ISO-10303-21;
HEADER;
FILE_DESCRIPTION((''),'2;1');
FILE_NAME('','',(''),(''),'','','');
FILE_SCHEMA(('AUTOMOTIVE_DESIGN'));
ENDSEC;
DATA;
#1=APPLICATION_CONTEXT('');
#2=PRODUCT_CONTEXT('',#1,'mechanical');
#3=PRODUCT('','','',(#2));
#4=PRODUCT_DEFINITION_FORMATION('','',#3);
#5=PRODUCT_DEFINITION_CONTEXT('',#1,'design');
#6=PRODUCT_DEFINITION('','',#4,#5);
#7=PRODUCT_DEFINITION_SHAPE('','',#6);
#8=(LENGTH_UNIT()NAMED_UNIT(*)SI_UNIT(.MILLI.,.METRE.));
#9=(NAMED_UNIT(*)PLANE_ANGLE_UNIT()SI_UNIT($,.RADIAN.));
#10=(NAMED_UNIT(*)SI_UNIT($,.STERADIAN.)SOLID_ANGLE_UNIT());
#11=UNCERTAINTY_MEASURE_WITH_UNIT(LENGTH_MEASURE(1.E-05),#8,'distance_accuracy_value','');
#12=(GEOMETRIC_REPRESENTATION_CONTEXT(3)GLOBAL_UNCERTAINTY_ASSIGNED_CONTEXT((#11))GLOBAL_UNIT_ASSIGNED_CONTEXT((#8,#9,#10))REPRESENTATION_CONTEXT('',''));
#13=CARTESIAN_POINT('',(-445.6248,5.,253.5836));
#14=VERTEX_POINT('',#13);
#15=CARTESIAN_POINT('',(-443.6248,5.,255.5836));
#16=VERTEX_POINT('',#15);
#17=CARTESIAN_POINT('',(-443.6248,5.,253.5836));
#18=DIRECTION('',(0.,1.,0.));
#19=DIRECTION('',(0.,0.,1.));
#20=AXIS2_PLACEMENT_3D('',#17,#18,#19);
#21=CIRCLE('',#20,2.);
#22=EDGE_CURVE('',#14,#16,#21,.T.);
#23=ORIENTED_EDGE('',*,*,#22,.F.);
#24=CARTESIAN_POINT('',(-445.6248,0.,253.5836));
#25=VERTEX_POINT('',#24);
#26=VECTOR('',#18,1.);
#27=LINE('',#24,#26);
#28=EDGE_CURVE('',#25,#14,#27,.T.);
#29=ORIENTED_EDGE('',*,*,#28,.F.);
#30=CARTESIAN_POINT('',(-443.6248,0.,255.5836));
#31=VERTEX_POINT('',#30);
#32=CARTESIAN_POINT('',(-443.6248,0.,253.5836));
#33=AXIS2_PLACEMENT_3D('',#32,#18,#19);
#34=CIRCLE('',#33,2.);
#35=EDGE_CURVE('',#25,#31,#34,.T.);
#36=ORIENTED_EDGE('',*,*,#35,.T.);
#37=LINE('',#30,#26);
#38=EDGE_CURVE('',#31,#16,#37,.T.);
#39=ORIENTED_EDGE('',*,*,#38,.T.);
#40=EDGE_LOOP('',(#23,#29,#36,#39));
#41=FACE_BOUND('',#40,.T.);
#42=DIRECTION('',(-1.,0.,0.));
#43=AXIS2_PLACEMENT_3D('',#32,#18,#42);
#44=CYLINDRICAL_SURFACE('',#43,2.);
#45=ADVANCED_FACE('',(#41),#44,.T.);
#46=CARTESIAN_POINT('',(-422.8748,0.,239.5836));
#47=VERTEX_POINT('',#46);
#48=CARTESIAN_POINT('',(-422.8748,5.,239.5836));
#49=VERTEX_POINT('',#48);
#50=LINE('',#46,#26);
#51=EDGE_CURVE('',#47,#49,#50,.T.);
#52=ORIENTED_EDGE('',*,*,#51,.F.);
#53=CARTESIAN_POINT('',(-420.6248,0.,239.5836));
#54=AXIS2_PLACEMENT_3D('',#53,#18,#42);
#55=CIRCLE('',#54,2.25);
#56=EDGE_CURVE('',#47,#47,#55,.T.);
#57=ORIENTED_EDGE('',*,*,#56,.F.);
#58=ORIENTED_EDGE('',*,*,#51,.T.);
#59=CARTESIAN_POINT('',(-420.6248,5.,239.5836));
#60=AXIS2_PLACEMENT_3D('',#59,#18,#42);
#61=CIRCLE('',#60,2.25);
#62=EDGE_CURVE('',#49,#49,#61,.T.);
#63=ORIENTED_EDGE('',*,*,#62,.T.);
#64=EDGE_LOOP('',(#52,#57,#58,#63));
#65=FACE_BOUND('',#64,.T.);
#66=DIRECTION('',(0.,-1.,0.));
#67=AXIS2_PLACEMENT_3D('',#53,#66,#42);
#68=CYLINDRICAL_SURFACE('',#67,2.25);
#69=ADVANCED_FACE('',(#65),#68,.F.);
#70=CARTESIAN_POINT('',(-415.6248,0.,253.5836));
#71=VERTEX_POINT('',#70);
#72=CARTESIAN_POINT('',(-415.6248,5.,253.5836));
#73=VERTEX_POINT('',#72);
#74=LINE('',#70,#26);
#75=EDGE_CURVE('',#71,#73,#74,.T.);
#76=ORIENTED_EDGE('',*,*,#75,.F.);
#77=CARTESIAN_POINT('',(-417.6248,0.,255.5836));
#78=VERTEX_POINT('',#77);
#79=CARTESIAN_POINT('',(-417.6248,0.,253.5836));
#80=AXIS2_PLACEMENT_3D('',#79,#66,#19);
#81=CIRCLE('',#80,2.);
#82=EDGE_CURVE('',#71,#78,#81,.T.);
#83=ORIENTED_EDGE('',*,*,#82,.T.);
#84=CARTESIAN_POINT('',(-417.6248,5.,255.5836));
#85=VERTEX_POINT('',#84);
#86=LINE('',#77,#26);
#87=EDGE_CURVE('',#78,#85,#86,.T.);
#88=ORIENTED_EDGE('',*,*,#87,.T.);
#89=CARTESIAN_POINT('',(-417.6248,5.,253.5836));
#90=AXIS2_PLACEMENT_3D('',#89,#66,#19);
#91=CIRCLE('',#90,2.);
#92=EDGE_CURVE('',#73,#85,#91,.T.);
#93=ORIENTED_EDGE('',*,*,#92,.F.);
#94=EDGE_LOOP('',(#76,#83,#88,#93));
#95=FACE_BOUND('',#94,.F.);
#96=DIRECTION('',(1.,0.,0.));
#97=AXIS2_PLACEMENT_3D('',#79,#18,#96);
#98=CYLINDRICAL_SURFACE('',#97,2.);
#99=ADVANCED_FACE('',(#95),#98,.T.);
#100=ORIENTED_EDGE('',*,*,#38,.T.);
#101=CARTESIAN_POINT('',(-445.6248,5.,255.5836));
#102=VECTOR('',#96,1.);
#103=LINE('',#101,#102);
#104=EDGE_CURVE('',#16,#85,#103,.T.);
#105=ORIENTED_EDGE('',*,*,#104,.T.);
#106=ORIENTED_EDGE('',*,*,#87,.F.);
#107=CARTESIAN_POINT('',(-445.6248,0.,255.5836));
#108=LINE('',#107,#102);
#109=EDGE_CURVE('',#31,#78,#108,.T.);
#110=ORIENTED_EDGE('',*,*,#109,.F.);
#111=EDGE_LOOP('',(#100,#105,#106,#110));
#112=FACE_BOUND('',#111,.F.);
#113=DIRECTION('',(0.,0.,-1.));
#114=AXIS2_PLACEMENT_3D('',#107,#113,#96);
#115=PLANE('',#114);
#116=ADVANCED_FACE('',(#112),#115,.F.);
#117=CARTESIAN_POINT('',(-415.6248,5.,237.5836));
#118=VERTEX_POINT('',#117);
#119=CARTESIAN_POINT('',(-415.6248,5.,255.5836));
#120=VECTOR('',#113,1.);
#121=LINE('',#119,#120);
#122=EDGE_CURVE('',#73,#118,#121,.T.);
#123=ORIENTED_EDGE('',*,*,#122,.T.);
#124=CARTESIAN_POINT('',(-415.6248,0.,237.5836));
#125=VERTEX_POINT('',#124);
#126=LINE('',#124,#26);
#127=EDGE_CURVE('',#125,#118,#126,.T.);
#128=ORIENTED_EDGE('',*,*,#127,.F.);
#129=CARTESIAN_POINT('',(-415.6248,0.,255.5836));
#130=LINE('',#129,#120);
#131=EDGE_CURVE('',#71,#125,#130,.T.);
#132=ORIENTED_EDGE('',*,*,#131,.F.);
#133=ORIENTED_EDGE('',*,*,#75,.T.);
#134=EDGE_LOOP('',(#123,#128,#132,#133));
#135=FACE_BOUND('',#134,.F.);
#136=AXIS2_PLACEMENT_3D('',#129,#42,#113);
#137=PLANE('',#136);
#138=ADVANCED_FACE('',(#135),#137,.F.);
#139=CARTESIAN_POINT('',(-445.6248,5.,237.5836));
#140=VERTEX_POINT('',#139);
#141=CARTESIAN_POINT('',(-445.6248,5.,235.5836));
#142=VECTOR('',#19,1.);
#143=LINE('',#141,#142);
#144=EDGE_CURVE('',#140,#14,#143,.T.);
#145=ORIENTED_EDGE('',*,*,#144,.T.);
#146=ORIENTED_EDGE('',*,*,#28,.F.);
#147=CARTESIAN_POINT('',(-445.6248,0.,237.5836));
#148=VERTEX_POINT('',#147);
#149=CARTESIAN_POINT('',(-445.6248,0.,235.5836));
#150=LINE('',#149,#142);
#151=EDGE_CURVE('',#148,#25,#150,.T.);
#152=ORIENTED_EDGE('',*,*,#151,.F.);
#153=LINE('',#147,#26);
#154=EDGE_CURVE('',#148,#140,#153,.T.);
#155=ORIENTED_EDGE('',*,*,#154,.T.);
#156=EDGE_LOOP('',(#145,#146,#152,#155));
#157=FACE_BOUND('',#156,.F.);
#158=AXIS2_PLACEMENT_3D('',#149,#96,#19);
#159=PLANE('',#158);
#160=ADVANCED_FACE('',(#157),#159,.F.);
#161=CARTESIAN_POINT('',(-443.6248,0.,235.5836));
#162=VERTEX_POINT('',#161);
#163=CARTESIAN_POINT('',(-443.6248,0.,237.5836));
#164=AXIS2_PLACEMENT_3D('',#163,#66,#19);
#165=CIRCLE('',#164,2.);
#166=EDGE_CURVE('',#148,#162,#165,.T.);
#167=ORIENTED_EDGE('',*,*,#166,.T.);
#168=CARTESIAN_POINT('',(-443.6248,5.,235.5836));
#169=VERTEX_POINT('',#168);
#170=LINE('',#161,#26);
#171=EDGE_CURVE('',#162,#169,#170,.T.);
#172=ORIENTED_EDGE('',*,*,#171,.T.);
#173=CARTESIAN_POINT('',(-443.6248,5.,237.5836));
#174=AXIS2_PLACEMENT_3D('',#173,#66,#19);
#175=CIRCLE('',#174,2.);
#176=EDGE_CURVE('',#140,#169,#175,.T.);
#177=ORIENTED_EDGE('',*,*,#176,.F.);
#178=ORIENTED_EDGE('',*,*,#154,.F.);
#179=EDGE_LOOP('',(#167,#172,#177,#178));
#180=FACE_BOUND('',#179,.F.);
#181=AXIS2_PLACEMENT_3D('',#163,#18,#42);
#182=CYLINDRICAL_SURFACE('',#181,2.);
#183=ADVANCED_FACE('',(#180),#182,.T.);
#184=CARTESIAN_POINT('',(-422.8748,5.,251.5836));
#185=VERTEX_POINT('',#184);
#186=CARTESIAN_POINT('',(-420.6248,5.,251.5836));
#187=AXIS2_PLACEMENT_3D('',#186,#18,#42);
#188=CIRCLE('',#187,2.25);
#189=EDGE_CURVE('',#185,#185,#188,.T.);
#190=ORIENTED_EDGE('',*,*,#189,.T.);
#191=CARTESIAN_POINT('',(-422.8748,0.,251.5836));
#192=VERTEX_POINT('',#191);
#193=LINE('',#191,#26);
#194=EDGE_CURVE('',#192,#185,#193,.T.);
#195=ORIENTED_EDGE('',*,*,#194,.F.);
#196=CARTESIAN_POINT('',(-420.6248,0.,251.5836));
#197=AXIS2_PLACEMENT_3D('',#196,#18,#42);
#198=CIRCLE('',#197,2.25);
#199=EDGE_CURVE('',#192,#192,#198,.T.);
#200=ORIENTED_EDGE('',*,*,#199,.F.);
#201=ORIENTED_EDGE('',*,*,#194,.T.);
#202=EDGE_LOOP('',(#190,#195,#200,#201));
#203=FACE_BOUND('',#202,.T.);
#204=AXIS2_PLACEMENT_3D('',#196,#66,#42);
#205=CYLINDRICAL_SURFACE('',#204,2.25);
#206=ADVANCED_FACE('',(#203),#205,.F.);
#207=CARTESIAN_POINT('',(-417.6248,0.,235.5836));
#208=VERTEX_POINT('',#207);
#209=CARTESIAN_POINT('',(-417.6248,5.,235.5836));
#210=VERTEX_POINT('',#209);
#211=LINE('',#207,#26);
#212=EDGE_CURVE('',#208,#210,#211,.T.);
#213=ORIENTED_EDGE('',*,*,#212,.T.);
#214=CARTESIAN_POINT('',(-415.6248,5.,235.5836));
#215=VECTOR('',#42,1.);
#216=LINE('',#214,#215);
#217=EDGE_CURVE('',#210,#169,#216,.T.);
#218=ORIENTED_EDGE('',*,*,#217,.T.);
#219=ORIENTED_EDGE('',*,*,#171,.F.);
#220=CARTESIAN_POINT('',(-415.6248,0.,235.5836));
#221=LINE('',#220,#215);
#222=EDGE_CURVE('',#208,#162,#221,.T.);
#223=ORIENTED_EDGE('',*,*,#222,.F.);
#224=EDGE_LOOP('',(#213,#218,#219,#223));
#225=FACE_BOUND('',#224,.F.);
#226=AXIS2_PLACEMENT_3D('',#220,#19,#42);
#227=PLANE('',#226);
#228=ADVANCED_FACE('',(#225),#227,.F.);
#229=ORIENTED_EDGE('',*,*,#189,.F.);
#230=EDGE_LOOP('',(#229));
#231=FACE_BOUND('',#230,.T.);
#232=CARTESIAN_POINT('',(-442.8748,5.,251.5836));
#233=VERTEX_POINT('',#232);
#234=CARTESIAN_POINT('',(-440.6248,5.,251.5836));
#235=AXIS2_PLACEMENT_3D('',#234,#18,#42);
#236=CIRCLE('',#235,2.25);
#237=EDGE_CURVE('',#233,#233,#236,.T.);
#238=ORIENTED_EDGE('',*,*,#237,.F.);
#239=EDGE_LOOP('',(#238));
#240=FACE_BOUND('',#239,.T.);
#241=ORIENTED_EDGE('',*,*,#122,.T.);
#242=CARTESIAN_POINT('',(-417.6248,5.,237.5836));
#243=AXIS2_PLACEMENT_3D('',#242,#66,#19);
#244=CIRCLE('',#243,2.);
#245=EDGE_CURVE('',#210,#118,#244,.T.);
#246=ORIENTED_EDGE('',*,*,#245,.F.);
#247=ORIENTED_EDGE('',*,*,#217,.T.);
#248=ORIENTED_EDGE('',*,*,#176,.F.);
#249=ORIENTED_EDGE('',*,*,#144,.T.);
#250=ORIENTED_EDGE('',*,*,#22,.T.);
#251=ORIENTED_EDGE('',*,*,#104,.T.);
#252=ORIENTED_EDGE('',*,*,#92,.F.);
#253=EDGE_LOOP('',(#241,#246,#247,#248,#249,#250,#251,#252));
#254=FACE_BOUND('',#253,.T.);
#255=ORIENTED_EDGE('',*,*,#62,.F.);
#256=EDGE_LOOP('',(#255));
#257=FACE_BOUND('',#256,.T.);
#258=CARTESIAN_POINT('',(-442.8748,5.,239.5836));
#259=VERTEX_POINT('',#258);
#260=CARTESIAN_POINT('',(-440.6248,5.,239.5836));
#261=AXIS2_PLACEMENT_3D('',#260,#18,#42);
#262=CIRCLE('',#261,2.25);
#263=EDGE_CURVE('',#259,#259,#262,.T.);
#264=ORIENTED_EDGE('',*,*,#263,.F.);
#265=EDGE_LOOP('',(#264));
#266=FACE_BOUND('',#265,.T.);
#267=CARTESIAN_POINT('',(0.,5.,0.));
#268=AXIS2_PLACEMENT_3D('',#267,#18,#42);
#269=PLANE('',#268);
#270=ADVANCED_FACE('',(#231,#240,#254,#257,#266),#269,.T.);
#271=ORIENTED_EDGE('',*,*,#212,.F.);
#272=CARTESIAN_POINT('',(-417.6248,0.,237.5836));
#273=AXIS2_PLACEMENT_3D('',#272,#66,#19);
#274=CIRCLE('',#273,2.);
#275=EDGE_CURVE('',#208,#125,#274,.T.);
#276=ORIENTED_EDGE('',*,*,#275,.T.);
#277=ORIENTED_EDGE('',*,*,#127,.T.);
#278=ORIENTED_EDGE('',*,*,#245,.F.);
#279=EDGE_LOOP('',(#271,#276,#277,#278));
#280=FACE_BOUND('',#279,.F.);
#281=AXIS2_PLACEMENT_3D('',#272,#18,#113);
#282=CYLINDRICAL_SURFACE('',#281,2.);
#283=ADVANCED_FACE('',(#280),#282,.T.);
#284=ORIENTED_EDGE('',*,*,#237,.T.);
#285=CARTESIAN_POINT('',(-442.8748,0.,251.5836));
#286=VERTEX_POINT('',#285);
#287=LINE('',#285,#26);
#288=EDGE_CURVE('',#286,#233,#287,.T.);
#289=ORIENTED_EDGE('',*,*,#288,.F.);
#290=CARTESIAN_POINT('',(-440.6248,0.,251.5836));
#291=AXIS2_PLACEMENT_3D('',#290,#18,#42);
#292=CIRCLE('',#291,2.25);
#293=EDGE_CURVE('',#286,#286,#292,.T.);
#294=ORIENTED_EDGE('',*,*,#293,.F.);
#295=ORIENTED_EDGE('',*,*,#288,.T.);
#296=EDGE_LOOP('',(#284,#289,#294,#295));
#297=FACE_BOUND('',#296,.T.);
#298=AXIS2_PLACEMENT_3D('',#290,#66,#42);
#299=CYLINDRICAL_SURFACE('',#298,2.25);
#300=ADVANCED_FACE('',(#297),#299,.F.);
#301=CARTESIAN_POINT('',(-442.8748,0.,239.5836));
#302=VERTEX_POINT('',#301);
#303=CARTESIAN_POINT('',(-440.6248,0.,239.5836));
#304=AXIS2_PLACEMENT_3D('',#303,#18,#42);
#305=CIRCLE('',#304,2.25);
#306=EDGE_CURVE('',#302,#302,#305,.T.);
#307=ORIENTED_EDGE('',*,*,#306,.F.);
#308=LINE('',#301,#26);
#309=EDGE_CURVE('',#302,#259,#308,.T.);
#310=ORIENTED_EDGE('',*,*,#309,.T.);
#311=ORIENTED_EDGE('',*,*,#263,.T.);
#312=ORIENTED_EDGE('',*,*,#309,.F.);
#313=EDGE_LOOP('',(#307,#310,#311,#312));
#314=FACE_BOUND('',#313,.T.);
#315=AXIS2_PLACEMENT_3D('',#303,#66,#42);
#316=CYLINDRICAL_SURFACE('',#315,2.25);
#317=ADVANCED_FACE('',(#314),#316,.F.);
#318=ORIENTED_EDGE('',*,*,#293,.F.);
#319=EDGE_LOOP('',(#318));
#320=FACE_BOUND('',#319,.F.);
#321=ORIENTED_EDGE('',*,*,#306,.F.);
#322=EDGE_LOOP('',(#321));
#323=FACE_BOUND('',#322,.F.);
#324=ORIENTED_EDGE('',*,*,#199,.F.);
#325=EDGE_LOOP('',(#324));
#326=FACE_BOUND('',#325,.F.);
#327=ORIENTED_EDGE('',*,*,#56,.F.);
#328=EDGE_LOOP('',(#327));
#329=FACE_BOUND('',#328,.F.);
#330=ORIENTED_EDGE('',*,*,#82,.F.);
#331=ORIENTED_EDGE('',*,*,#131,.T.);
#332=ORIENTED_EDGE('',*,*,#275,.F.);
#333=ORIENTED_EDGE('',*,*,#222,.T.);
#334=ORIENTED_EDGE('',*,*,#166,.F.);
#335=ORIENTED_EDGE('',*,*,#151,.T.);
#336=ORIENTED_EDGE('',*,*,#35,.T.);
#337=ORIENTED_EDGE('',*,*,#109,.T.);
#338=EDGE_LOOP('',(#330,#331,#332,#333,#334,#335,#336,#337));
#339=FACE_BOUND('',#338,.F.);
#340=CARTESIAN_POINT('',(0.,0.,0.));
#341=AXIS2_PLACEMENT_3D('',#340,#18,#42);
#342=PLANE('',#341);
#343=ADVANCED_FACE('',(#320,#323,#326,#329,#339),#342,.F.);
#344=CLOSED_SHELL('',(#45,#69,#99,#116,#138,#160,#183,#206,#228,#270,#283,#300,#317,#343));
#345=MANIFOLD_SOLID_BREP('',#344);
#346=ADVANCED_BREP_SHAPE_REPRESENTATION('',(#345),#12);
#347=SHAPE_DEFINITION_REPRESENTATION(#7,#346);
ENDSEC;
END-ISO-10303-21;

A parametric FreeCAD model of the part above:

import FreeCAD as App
import Part
import Sketcher

V = App.Vector
Q = App.Units.Quantity


def edges_at(feature, points):
    """Names of the edges that pass closest to the given points."""
    edges = feature.Shape.Edges
    near = lambda p: min(range(len(edges)), key=lambda i: edges[i].distToShape(Part.Vertex(*p))[0])
    return sorted({f"Edge{near(p) + 1}" for p in points})


def add_polygon(sketch, points):
    """Adds a closed chain of lines whose ends are joined by coincident constraints."""
    first, n = sketch.GeometryCount, len(points)
    for a, b in zip(points, points[1:] + points[:1]):
        sketch.addGeometry(Part.LineSegment(App.Vector(*a, 0), App.Vector(*b, 0)), False)
    for i in range(n):
        sketch.addConstraint(Sketcher.Constraint("Coincident", first + i, 2, first + (i + 1) % n, 1))

doc = App.newDocument("Part")
params = doc.addObject("Spreadsheet::Sheet", "Params")
for row, (alias, value) in enumerate([
    ("sketch1_diameter", "4.5 mm"),
    ("sketch1_width", "30 mm"),
    ("sketch1_height", "20 mm"),
    ("pad1_length", "5 mm"),
    ("fillet_radius", "2 mm"),
], start=1):
    params.set(f"A{row}", alias)
    params.set(f"B{row}", "=" + value)
    params.setAlias(f"B{row}", alias)

body = doc.addObject("PartDesign::Body", "Body")

sketch1 = doc.addObject("Sketcher::SketchObject", "Sketch")
body.addObject(sketch1)
sketch1.AttachmentSupport = (doc.XZ_Plane, [""])
sketch1.MapMode = "FlatFace"
add_polygon(sketch1, [(-445.6, 235.6), (-445.6, 255.6), (-415.6, 255.6), (-415.6, 235.6)])
sketch1.addGeometry(Part.Circle(V(-420.6, 239.6, 0), V(0, 0, 1), 2.2), False)
sketch1.addGeometry(Part.Circle(V(-440.6, 239.6, 0), V(0, 0, 1), 2.2), False)
sketch1.addGeometry(Part.Circle(V(-420.6, 251.6, 0), V(0, 0, 1), 2.2), False)
sketch1.addGeometry(Part.Circle(V(-440.6, 251.6, 0), V(0, 0, 1), 2.2), False)
sketch1.addConstraint([
    Sketcher.Constraint("Vertical", 0),
    Sketcher.Constraint("Horizontal", 1),
    Sketcher.Constraint("Vertical", 2),
    Sketcher.Constraint("Horizontal", 3),
    Sketcher.Constraint("Equal", 4, 5),
    Sketcher.Constraint("Equal", 5, 6),
    Sketcher.Constraint("Equal", 6, 7),
    Sketcher.Constraint("Horizontal", 4, 3, 5, 3),
    Sketcher.Constraint("Horizontal", 6, 3, 7, 3),
    Sketcher.Constraint("Vertical", 4, 3, 6, 3),
    Sketcher.Constraint("Vertical", 5, 3, 7, 3),
    Sketcher.Constraint("Diameter", 4, Q("4.5 mm")),
    Sketcher.Constraint("DistanceX", 1, 1, 1, 2, Q("30 mm")),
    Sketcher.Constraint("DistanceY", 0, 1, 0, 2, Q("20 mm")),
    Sketcher.Constraint("DistanceX", 5, 3, 4, 3, Q("20 mm")),
    Sketcher.Constraint("DistanceY", 4, 3, 6, 3, Q("12 mm")),
    Sketcher.Constraint("DistanceX", 0, 2, 7, 3, Q("5 mm")),
    Sketcher.Constraint("DistanceY", 7, 3, 0, 2, Q("4 mm")),
    Sketcher.Constraint("DistanceX", 4, 3, -1, 1, Q("420.6248 mm")),
    Sketcher.Constraint("DistanceY", -1, 1, 4, 3, Q("239.5836 mm")),
])
sketch1.setExpression("Constraints[15]", "Params.sketch1_diameter")
sketch1.setExpression("Constraints[16]", "Params.sketch1_width")
sketch1.setExpression("Constraints[17]", "Params.sketch1_height")
pad1 = doc.addObject("PartDesign::Pad", "Pad")
body.addObject(pad1)
pad1.Profile = sketch1
pad1.setExpression("Length", "Params.pad1_length")
pad1.Reversed = True
doc.recompute()

fillet = doc.addObject("PartDesign::Fillet", "Fillet")
body.addObject(fillet)
fillet.Base = (pad1, edges_at(pad1, [
    (-415.625, 2.5, 255.584),
    (-415.625, 2.5, 235.584),
    (-445.625, 2.5, 255.584),
    (-445.625, 2.5, 235.584),
]))
fillet.setExpression("Radius", "Params.fillet_radius")

doc.recompute()
